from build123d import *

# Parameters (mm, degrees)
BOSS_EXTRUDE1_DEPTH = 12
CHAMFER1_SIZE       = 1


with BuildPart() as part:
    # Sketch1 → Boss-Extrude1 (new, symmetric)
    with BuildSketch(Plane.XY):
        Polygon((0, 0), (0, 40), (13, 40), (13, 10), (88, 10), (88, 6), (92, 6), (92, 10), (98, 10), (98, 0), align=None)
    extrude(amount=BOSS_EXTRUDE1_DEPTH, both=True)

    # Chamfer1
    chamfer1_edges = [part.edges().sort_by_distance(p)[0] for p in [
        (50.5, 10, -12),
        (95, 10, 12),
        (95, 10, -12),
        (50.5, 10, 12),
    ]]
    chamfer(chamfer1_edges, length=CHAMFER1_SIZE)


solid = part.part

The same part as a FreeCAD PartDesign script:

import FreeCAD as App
import Part
import Sketcher


def edges_at(feature, points):
    """Names of the edges that pass closest to the given points."""
    edges = feature.Shape.Edges
    near = lambda p: min(range(len(edges)), key=lambda i: edges[i].distToShape(Part.Vertex(*p))[0])
    return sorted({f"Edge{near(p) + 1}" for p in points})

doc = App.newDocument("Part")
body = doc.addObject("PartDesign::Body", "Body")

# Sketch on XY plane
sketch1 = body.newObject("Sketcher::SketchObject", "Sketch")
sketch1.AttachmentSupport = (doc.getObject("XY_Plane"), [""])
sketch1.MapMode = "FlatFace"
sketch1.addGeometry([
    Part.LineSegment(App.Vector(0, 40, 0), App.Vector(0, 0, 0)),  # 0
    Part.LineSegment(App.Vector(0, 0, 0), App.Vector(98, 0, 0)),  # 1
    Part.LineSegment(App.Vector(98, 0, 0), App.Vector(98, 10, 0)),  # 2
    Part.LineSegment(App.Vector(98, 10, 0), App.Vector(92, 10, 0)),  # 3
    Part.LineSegment(App.Vector(92, 10, 0), App.Vector(92, 6, 0)),  # 4
    Part.LineSegment(App.Vector(92, 6, 0), App.Vector(88, 6, 0)),  # 5
    Part.LineSegment(App.Vector(88, 6, 0), App.Vector(88, 10, 0)),  # 6
    Part.LineSegment(App.Vector(88, 10, 0), App.Vector(13, 10, 0)),  # 7
    Part.LineSegment(App.Vector(13, 10, 0), App.Vector(13, 40, 0)),  # 8
    Part.LineSegment(App.Vector(13, 40, 0), App.Vector(0, 40, 0)),  # 9
], False)
sketch1.addConstraint([
    Sketcher.Constraint("Coincident", 0, 2, 1, 1),
    Sketcher.Constraint("Coincident", 1, 2, 2, 1),
    Sketcher.Constraint("Coincident", 2, 2, 3, 1),
    Sketcher.Constraint("Coincident", 3, 2, 4, 1),
    Sketcher.Constraint("Coincident", 4, 2, 5, 1),
    Sketcher.Constraint("Coincident", 5, 2, 6, 1),
    Sketcher.Constraint("Coincident", 6, 2, 7, 1),
    Sketcher.Constraint("Coincident", 7, 2, 8, 1),
    Sketcher.Constraint("Coincident", 8, 2, 9, 1),
    Sketcher.Constraint("Coincident", 9, 2, 0, 1),
    Sketcher.Constraint("Vertical", 0),
    Sketcher.Constraint("Horizontal", 1),
    Sketcher.Constraint("Vertical", 2),
    Sketcher.Constraint("Horizontal", 3),
    Sketcher.Constraint("Vertical", 4),
    Sketcher.Constraint("Horizontal", 5),
    Sketcher.Constraint("Vertical", 6),
    Sketcher.Constraint("Horizontal", 7),
    Sketcher.Constraint("Vertical", 8),
    Sketcher.Constraint("Horizontal", 9),
    Sketcher.Constraint("Coincident", 0, 2, -1, 1),
    Sketcher.Constraint("Horizontal", 3, 2, 6, 2),
    Sketcher.Constraint("Equal", 5, 4),
    Sketcher.Constraint("DistanceX", 1, 1, 1, 2, 98.0),
    Sketcher.Constraint("DistanceX", 3, 2, 3, 1, 6.0),
    Sketcher.Constraint("DistanceX", 5, 2, 5, 1, 4.0),
    Sketcher.Constraint("DistanceX", 7, 2, 7, 1, 75.0),
    Sketcher.Constraint("DistanceY", 0, 2, 0, 1, 40.0),
    Sketcher.Constraint("DistanceY", 2, 1, 2, 2, 10.0),
])
pad1 = body.newObject("PartDesign::Pad", "Pad")
pad1.Profile = sketch1
pad1.Length = 24
pad1.Midplane = True
doc.recompute()

chamfer = body.newObject("PartDesign::Chamfer", "Chamfer")
chamfer.Base = (pad1, edges_at(pad1, [
    (50.5, 10, -12),
    (95, 10, 12),
    (95, 10, -12),
    (50.5, 10, 12),
]))
chamfer.Size = 1

doc.recompute()
